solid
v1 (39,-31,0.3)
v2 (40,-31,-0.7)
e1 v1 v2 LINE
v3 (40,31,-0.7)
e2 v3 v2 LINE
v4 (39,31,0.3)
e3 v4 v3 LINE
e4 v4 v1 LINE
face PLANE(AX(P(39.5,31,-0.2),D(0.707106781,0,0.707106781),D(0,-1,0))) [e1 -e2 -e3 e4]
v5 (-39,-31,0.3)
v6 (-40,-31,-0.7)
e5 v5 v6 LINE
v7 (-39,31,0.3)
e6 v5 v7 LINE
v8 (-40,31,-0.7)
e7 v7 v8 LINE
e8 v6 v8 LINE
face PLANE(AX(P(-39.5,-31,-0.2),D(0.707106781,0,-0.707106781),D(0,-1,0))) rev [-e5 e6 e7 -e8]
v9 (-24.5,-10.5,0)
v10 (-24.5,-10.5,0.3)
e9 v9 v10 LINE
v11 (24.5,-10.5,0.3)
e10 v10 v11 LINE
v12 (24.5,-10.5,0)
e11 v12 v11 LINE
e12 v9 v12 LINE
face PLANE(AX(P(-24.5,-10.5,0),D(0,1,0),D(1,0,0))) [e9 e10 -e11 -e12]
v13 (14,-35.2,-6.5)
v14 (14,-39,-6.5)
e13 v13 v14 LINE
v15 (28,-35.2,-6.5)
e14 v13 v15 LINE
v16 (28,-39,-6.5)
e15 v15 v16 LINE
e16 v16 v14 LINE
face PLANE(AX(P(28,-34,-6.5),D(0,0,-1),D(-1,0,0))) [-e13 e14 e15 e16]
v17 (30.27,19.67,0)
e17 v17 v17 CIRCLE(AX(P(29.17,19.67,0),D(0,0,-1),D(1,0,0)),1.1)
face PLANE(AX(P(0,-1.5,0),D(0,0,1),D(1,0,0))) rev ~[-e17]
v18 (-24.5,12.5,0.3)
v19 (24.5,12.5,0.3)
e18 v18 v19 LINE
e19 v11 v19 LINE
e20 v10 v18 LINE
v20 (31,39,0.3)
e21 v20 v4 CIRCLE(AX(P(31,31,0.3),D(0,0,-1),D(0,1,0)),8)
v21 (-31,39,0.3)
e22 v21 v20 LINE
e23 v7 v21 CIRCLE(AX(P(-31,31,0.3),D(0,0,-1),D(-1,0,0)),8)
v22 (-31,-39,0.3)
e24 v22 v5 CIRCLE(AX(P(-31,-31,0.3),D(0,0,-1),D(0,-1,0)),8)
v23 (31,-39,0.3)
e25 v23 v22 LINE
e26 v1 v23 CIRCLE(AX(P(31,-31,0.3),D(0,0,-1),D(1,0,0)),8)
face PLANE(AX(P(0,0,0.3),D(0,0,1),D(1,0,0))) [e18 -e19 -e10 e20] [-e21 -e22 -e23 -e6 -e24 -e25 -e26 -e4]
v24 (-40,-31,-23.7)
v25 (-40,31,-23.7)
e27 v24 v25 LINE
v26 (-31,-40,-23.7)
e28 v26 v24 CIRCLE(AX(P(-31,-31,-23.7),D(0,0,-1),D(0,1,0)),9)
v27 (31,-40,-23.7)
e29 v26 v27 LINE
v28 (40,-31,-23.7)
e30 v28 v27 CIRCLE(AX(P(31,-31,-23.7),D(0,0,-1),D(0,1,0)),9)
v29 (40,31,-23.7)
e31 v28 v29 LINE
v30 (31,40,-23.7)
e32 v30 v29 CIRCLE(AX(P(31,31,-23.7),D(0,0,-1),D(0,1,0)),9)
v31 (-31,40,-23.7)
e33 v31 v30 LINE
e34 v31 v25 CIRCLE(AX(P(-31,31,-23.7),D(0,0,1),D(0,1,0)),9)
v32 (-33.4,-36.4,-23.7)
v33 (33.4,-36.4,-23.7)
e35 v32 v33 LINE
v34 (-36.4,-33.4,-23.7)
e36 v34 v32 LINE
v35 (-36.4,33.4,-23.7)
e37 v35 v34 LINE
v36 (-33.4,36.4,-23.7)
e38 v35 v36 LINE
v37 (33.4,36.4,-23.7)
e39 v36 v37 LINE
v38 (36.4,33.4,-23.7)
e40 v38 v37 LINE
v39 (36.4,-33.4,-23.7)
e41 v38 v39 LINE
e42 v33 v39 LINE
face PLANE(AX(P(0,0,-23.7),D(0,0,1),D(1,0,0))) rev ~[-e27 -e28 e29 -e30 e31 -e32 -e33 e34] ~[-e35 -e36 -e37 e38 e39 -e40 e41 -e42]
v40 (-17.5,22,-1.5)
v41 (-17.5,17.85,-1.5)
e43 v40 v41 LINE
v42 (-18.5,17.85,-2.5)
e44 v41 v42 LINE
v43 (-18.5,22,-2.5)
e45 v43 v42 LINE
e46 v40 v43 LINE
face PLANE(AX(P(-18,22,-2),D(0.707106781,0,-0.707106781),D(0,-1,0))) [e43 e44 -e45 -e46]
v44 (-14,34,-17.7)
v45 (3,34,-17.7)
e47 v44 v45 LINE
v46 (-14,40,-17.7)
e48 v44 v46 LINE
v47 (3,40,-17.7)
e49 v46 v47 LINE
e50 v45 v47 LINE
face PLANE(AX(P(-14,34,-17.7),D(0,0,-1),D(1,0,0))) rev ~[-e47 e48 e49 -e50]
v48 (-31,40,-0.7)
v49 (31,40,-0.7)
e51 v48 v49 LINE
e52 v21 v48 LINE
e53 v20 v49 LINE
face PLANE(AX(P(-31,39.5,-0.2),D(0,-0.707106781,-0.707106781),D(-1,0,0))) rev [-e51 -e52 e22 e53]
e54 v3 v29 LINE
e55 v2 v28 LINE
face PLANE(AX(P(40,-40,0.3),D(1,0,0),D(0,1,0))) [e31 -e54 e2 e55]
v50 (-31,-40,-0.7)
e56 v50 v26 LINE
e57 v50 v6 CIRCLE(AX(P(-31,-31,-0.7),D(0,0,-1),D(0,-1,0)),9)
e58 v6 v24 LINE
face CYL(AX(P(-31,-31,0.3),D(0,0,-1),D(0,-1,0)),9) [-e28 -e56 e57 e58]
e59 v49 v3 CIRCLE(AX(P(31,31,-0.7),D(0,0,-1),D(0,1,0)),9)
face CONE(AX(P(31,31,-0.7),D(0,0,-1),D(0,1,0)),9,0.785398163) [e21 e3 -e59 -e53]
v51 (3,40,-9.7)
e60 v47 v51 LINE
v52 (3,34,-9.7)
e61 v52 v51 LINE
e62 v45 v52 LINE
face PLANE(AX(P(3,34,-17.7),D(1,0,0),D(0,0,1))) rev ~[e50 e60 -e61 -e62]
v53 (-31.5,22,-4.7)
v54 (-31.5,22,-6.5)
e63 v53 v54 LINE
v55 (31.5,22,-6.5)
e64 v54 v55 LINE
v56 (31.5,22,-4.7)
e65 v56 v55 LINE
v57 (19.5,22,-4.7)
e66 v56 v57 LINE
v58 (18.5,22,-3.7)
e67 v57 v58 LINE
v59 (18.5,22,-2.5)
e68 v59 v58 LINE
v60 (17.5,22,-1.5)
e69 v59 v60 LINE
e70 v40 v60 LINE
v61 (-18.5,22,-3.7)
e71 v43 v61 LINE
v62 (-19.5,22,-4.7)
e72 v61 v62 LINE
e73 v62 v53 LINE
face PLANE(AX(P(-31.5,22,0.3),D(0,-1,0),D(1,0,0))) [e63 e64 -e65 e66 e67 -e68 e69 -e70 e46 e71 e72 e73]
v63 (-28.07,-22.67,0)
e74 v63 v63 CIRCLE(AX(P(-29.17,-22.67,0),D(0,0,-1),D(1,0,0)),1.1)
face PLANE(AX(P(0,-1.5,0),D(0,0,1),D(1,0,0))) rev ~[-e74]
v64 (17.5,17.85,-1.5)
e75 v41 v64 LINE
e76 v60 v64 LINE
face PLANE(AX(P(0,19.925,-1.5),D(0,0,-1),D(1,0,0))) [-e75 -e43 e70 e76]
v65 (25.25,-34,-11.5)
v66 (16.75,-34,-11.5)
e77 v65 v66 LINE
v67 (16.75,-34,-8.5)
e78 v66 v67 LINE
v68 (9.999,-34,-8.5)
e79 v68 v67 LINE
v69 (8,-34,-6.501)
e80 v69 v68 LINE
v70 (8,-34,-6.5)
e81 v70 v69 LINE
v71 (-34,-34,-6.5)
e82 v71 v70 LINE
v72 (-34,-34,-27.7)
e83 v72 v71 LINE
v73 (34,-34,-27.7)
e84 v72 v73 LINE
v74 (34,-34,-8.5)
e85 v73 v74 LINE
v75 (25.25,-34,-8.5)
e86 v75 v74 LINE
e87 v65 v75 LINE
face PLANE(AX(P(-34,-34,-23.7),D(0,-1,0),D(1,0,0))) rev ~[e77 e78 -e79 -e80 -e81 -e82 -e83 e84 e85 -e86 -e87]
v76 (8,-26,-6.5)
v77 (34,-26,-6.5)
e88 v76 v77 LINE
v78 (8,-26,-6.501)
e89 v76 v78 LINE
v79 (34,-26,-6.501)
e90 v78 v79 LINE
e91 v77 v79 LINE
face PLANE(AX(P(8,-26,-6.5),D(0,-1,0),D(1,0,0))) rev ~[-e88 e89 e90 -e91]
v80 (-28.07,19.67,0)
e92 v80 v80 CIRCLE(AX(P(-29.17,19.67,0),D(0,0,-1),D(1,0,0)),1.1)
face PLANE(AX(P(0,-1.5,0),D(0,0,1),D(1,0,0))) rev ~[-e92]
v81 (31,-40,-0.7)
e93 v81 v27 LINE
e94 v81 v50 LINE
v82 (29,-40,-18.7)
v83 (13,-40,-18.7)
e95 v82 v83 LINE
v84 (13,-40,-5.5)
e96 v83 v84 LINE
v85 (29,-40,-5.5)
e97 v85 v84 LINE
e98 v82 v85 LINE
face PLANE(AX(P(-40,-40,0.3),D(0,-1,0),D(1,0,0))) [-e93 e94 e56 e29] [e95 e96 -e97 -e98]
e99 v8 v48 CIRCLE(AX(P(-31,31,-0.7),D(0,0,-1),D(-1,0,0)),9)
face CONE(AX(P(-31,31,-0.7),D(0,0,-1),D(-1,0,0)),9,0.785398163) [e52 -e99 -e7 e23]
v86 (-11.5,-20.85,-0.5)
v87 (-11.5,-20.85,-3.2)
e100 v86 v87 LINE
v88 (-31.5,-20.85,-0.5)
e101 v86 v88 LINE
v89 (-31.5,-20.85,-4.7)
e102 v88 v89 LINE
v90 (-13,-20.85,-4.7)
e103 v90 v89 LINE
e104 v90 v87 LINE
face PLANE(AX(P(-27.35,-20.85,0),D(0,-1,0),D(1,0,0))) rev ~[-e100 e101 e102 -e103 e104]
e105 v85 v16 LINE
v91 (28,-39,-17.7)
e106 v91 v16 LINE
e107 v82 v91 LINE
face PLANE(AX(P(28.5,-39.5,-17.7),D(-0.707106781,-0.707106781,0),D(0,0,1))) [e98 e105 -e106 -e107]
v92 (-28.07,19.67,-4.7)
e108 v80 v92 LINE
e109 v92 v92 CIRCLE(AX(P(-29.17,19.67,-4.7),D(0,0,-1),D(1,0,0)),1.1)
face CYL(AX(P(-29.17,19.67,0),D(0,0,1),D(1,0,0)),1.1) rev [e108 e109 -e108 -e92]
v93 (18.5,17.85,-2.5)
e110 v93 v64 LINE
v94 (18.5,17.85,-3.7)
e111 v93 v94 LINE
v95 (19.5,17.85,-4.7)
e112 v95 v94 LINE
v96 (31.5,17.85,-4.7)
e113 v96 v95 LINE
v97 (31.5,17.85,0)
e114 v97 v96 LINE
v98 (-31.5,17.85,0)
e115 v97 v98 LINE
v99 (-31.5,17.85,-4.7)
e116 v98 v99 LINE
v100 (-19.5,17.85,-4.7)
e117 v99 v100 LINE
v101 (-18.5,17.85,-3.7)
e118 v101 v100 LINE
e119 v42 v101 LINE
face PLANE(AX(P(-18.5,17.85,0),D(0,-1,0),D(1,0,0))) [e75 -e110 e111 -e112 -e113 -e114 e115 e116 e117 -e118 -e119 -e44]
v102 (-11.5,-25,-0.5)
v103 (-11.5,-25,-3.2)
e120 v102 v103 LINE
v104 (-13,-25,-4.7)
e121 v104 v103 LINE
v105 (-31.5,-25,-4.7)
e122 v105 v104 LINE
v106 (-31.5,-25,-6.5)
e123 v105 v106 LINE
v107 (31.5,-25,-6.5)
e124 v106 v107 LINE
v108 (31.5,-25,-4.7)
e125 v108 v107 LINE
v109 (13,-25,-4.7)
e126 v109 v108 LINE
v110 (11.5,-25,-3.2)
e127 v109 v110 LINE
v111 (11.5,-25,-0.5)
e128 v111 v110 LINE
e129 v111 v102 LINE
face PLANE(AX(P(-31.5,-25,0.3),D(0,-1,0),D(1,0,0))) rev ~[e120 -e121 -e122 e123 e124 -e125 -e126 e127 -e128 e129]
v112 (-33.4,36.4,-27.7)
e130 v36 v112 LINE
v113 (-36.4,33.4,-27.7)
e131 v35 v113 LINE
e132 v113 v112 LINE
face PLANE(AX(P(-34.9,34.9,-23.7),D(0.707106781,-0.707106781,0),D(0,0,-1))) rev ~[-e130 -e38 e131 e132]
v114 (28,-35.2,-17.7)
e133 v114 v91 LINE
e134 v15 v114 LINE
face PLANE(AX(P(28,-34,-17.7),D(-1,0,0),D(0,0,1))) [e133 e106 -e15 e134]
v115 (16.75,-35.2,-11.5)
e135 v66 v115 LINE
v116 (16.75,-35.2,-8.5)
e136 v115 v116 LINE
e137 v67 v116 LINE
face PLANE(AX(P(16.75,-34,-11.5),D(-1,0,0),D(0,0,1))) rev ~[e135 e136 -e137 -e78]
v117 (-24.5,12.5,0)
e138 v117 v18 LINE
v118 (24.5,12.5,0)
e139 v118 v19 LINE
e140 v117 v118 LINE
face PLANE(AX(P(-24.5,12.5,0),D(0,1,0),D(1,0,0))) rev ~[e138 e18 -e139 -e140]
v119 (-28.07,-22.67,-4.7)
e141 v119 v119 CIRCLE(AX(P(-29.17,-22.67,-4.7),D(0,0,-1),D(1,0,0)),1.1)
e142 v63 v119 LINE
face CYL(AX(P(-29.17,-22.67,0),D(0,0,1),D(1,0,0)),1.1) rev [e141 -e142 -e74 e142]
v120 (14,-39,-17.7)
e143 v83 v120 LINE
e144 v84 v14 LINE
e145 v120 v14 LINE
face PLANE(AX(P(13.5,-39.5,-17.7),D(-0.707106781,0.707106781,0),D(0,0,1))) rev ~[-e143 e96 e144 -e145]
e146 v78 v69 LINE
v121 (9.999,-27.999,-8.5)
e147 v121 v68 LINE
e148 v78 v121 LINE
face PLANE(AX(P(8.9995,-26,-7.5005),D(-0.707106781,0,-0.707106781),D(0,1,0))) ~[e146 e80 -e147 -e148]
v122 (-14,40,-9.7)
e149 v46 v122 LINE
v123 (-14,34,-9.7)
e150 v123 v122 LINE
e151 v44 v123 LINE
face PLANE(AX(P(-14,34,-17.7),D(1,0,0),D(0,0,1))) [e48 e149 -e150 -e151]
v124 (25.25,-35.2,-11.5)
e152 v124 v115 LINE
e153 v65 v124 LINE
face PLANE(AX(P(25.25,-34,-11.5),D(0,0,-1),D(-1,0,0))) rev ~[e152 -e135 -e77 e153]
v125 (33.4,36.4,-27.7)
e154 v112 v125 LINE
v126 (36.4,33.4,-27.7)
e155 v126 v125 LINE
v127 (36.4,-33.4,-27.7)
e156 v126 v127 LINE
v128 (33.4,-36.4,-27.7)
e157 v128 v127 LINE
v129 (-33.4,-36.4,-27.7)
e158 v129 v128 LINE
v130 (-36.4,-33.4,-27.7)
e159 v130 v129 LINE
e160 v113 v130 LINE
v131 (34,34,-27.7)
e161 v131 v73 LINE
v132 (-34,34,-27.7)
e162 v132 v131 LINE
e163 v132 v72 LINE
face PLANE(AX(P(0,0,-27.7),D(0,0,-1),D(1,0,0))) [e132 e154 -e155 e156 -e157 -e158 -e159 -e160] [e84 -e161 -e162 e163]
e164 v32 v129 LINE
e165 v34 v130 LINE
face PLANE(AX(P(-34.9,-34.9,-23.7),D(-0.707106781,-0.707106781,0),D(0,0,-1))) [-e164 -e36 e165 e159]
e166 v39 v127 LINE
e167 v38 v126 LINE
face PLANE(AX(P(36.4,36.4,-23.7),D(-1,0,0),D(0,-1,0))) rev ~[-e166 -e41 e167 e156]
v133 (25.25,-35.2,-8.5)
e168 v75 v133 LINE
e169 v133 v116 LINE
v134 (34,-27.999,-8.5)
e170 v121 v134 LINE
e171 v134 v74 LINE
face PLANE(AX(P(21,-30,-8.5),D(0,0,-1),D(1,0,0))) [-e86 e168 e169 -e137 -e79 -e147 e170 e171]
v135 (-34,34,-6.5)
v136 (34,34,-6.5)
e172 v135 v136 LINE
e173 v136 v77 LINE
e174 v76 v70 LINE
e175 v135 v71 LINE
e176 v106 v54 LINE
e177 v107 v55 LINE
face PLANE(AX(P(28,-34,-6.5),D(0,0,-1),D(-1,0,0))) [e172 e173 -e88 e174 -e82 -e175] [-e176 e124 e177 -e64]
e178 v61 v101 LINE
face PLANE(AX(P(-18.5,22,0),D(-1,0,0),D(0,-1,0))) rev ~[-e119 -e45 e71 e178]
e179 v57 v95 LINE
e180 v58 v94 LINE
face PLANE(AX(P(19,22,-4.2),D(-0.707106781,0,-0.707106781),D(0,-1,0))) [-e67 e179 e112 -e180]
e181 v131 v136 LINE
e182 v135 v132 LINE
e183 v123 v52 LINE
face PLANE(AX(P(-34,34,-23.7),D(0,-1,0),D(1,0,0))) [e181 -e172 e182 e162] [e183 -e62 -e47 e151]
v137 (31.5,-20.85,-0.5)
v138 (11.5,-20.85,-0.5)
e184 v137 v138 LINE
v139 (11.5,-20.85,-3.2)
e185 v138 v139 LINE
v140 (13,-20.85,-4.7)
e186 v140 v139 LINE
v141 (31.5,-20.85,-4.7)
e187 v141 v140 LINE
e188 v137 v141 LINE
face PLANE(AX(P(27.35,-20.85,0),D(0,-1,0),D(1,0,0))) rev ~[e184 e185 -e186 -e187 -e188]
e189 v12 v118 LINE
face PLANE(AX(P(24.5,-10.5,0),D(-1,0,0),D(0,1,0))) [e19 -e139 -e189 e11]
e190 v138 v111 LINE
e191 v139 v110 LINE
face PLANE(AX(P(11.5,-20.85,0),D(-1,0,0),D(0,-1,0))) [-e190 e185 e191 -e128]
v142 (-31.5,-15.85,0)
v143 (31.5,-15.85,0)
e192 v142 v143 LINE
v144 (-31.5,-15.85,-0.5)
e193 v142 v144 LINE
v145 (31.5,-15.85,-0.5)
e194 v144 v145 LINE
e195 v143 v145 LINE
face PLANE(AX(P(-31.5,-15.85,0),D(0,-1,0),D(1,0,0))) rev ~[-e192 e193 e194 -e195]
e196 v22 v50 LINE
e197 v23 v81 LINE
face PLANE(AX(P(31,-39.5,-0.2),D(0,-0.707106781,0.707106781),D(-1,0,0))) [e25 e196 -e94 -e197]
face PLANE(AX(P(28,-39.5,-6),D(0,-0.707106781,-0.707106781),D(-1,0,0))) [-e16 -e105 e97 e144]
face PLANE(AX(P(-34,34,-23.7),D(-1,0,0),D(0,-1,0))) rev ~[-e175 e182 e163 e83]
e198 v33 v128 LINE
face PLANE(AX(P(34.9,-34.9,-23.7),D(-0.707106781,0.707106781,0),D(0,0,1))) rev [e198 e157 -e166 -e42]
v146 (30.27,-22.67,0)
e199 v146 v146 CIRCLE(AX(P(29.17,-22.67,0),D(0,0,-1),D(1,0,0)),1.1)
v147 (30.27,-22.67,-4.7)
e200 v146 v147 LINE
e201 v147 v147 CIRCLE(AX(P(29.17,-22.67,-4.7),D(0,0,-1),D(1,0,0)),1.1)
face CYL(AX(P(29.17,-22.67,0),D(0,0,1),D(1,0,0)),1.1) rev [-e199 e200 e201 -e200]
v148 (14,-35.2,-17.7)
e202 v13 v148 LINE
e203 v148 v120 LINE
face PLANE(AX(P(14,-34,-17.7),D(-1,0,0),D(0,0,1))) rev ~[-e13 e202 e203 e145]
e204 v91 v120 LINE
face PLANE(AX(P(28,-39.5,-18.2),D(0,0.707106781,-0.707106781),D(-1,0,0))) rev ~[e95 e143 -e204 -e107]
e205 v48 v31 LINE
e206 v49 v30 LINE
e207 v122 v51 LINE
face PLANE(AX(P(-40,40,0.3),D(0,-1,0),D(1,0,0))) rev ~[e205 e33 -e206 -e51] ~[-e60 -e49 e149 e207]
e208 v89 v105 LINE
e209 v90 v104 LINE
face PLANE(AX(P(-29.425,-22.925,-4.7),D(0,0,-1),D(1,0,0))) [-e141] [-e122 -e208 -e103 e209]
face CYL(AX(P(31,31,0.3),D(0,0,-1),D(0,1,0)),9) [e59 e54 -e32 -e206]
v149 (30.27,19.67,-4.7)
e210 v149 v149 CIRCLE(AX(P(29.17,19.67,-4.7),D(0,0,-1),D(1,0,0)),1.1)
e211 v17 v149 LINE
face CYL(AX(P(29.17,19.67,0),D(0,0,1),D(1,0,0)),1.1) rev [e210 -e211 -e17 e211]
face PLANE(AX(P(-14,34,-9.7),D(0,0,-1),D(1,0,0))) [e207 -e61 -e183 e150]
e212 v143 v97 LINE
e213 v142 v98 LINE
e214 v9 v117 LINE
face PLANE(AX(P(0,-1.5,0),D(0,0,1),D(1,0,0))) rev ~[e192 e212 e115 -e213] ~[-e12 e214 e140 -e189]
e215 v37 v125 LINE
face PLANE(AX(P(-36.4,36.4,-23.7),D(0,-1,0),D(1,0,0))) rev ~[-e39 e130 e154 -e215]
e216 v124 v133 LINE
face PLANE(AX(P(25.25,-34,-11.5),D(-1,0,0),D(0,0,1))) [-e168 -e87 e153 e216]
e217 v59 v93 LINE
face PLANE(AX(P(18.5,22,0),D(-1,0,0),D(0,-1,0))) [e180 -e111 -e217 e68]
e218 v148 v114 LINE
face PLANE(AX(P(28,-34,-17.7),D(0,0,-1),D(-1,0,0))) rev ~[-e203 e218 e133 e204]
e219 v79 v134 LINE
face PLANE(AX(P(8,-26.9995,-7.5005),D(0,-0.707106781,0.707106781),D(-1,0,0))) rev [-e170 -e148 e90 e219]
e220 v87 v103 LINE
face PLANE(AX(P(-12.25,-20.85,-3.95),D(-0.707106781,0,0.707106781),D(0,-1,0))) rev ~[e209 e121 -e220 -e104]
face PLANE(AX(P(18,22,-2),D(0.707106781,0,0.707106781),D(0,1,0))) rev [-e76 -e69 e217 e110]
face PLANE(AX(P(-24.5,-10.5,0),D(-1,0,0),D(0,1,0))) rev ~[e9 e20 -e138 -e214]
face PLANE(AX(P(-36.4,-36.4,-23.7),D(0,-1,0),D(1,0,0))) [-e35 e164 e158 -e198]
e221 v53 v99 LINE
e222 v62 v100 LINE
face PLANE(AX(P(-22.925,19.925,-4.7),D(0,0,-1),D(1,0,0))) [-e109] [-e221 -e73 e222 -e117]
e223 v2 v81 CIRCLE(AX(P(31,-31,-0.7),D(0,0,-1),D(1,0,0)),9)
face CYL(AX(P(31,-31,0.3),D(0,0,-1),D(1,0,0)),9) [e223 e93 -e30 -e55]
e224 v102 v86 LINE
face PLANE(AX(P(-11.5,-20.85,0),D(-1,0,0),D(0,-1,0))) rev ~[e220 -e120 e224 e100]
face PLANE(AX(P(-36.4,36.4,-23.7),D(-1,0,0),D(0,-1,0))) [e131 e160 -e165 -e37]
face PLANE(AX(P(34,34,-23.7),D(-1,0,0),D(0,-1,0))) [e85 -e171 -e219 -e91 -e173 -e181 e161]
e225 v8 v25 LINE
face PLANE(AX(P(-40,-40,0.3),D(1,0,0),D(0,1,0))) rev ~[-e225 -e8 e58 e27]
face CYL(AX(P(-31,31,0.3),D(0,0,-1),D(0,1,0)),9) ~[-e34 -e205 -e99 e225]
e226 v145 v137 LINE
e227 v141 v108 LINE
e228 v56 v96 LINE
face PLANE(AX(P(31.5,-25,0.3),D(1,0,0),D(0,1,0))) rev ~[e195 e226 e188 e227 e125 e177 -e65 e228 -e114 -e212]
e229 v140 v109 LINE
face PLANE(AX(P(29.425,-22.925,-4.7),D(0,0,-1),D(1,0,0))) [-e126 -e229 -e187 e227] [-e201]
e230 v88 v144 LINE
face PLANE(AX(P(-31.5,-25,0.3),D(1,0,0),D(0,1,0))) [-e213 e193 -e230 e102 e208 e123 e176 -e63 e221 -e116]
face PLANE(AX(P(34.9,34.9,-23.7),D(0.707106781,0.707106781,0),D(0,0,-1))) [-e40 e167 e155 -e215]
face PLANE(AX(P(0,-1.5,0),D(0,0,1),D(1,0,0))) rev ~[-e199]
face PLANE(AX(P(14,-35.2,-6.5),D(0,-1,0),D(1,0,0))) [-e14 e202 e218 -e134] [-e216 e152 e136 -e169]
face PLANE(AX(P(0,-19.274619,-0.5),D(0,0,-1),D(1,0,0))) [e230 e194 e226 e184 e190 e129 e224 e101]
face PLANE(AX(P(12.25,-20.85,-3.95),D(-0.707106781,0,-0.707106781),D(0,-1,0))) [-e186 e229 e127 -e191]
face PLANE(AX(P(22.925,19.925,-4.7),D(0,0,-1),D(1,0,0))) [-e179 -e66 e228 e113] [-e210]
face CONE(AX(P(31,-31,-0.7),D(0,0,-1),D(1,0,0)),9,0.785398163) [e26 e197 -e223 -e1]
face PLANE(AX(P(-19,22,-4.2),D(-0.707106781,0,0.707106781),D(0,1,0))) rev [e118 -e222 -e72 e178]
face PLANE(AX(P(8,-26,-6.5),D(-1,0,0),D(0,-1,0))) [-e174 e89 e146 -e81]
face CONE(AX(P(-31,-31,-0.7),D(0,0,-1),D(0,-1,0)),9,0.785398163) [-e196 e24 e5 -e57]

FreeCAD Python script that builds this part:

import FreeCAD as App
import Part
import Sketcher
from FreeCAD import Vector


def edges_at(feature, points):
    """Names of the edges that pass closest to the given points."""
    edges = feature.Shape.Edges
    near = lambda p: min(range(len(edges)), key=lambda i: edges[i].distToShape(Part.Vertex(*p))[0])
    return sorted({f"Edge{near(p) + 1}" for p in points})


def add_polygon(sketch, points):
    """Adds a closed chain of lines whose ends are joined by coincident constraints."""
    first, n = sketch.GeometryCount, len(points)
    for a, b in zip(points, points[1:] + points[:1]):
        sketch.addGeometry(Part.LineSegment(App.Vector(*a, 0), App.Vector(*b, 0)), False)
    for i in range(n):
        sketch.addConstraint(Sketcher.Constraint("Coincident", first + i, 2, first + (i + 1) % n, 1))

doc = App.newDocument("Part")
params = doc.addObject("Spreadsheet::Sheet", "Params")
for row, (alias, value) in enumerate([
    ("sketch1_width", "63 mm"),
    ("sketch1_width2", "49 mm"),
    ("sketch1_height", "47 mm"),
    ("sketch1_height2", "23 mm"),
    ("pad1_length", "0.3 mm"),
    ("sketch2_width", "65 mm"),
    ("sketch2_width2", "63 mm"),
    ("sketch2_height", "49 mm"),
    ("sketch2_height2", "47 mm"),
    ("pad2_length", "6.8 mm"),
    ("sketch3_diameter", "2.2 mm"),
    ("sketch3_width", "4.15 mm"),
    ("pad3_length", "4.7 mm"),
    ("sketch4_width", "8.85 mm"),
    ("sketch4_height", "4.15 mm"),
    ("pad4_length", "4.7 mm"),
    ("sketch5_width", "37 mm"),
    ("sketch5_height", "4.15 mm"),
    ("pad5_length", "1.5 mm"),
    ("chamfer_size", "1 mm"),
    ("sketch6_width", "23 mm"),
    ("sketch6_width2", "20 mm"),
    ("sketch6_height", "5 mm"),
    ("sketch6_height2", "4.15 mm"),
    ("pad6_length", "0.5 mm"),
    ("chamfer2_size", "1.5 mm"),
    ("sketch7_width", "80 mm"),
    ("sketch7_width2", "65 mm"),
    ("sketch7_height", "49 mm"),
    ("pad7_length", "24 mm"),
    ("sketch8_width", "68 mm"),
    ("sketch8_width2", "65 mm"),
    ("sketch8_height", "49 mm"),
    ("pocket1_length", "17.2 mm"),
    ("sketch9_width", "14 mm"),
    ("sketch9_height", "11.2 mm"),
    ("pocket2_length", "6 mm"),
    ("sketch10_width", "17 mm"),
    ("sketch10_height", "8 mm"),
    ("pocket3_length", "6 mm"),
    ("sketch11_width", "26 mm"),
    ("sketch11_height", "8 mm"),
    ("pad8_length", "2 mm"),
    ("chamfer3_size", "1.999 mm"),
    ("sketch12_width", "14 mm"),
    ("sketch12_height", "1.2 mm"),
    ("pad9_length", "11.2 mm"),
    ("sketch13_height", "3 mm"),
    ("sketch13_width", "8.5 mm"),
    ("pocket4_length", "1.2 mm"),
    ("sketch14_width", "68 mm"),
    ("sketch14_width2", "72.8 mm"),
    ("pad10_length", "4 mm"),
    ("fillet_radius", "9 mm"),
    ("chamfer4_size", "3 mm"),
    ("chamfer5_size", "1 mm"),
    ("chamfer6_size", "1 mm"),
], start=1):
    params.set(f"A{row}", alias)
    params.set(f"B{row}", "=" + value)
    params.setAlias(f"B{row}", alias)

body = doc.addObject("PartDesign::Body", "Body")

# Sketch on XY plane
sketch1 = body.newObject("Sketcher::SketchObject", "Sketch")
sketch1.AttachmentSupport = (doc.getObject("XY_Plane"), [""])
sketch1.MapMode = "FlatFace"
add_polygon(sketch1, [(-32, 22), (-32, -25), (32, -25), (32, 22)])  # lines 0-3
add_polygon(sketch1, [(24, -10), (-24, -10), (-24, 12), (24, 12)])  # lines 4-7
sketch1.addConstraint(Sketcher.Constraint("Vertical", 0))
sketch1.addConstraint(Sketcher.Constraint("Horizontal", 1))
sketch1.addConstraint(Sketcher.Constraint("Vertical", 2))
sketch1.addConstraint(Sketcher.Constraint("Horizontal", 3))
sketch1.addConstraint(Sketcher.Constraint("Horizontal", 4))
sketch1.addConstraint(Sketcher.Constraint("Vertical", 5))
sketch1.addConstraint(Sketcher.Constraint("Horizontal", 6))
sketch1.addConstraint(Sketcher.Constraint("Vertical", 7))
sketch1.addConstraint(Sketcher.Constraint("DistanceX", 1, 1, 1, 2, 63.0))
sketch1.addConstraint(Sketcher.Constraint("DistanceX", 4, 2, 4, 1, 49.0))
sketch1.addConstraint(Sketcher.Constraint("DistanceY", 0, 2, 0, 1, 47.0))
sketch1.addConstraint(Sketcher.Constraint("DistanceY", 5, 1, 5, 2, 23.0))
sketch1.addConstraint(Sketcher.Constraint("DistanceY", 0, 2, -1, 1, 25.0))
sketch1.addConstraint(Sketcher.Constraint("DistanceX", 0, 2, 4, 2, 7.0))
sketch1.addConstraint(Sketcher.Constraint("DistanceX", 0, 2, -1, 1, 31.5))
sketch1.addConstraint(Sketcher.Constraint("DistanceY", 4, 2, -1, 1, 10.5))
sketch1.setExpression("Constraints[16]", "Params.sketch1_width")
sketch1.setExpression("Constraints[17]", "Params.sketch1_width2")
sketch1.setExpression("Constraints[18]", "Params.sketch1_height")
sketch1.setExpression("Constraints[19]", "Params.sketch1_height2")
pad1 = body.newObject("PartDesign::Pad", "Pad")
pad1.Profile = sketch1
pad1.setExpression("Length", "Params.pad1_length")

# Sketch on XY plane
sketch2 = body.newObject("Sketcher::SketchObject", "Sketch001")
sketch2.AttachmentSupport = (doc.getObject("XY_Plane"), [""])
sketch2.MapMode = "FlatFace"
sketch2.AttachmentOffset = App.Placement(Vector(0, 0, 0.3), App.Rotation())
add_polygon(sketch2, [(-32, 23), (-32, -26), (32, -26), (32, 23)])  # lines 0-3
add_polygon(sketch2, [(32, -25), (-32, -25), (-32, 22), (32, 22)])  # lines 4-7
sketch2.addConstraint(Sketcher.Constraint("Vertical", 0))
sketch2.addConstraint(Sketcher.Constraint("Horizontal", 1))
sketch2.addConstraint(Sketcher.Constraint("Vertical", 2))
sketch2.addConstraint(Sketcher.Constraint("Horizontal", 3))
sketch2.addConstraint(Sketcher.Constraint("Horizontal", 4))
sketch2.addConstraint(Sketcher.Constraint("Vertical", 5))
sketch2.addConstraint(Sketcher.Constraint("Horizontal", 6))
sketch2.addConstraint(Sketcher.Constraint("Vertical", 7))
sketch2.addConstraint(Sketcher.Constraint("DistanceX", 1, 1, 1, 2, 65.0))
sketch2.addConstraint(Sketcher.Constraint("DistanceX", 4, 2, 4, 1, 63.0))
sketch2.addConstraint(Sketcher.Constraint("DistanceY", 0, 2, 0, 1, 49.0))
sketch2.addConstraint(Sketcher.Constraint("DistanceY", 5, 1, 5, 2, 47.0))
sketch2.addConstraint(Sketcher.Constraint("DistanceY", 0, 2, -1, 1, 26.0))
sketch2.addConstraint(Sketcher.Constraint("DistanceY", 4, 2, -1, 1, 25.0))
sketch2.addConstraint(Sketcher.Constraint("DistanceX", 0, 2, 4, 2, 1.0))
sketch2.addConstraint(Sketcher.Constraint("DistanceX", 0, 2, -1, 1, 32.5))
sketch2.setExpression("Constraints[16]", "Params.sketch2_width")
sketch2.setExpression("Constraints[17]", "Params.sketch2_width2")
sketch2.setExpression("Constraints[18]", "Params.sketch2_height")
sketch2.setExpression("Constraints[19]", "Params.sketch2_height2")
pad2 = body.newObject("PartDesign::Pad", "Pad001")
pad2.Profile = sketch2
pad2.setExpression("Length", "Params.pad2_length")
pad2.Reversed = True

# Sketch on XY plane
sketch3 = body.newObject("Sketcher::SketchObject", "Sketch002")
sketch3.AttachmentSupport = (doc.getObject("XY_Plane"), [""])
sketch3.MapMode = "FlatFace"
add_polygon(sketch3, [(-31.5, -25), (-31.5, -20.9), (-27.4, -20.9), (-27.4, -25)])  # lines 0-3
sketch3.addGeometry(Part.Circle(Vector(-29.2, -22.7, 0), Vector(0, 0, 1), 1.1), False)  # 4
add_polygon(sketch3, [(-31.5, 17.9), (-31.5, 22), (-27.4, 22), (-27.4, 17.9)])  # lines 5-8
sketch3.addGeometry(Part.Circle(Vector(-29.2, 19.7, 0), Vector(0, 0, 1), 1.1), False)  # 9
add_polygon(sketch3, [(27.4, 17.9), (27.4, 22), (31.5, 22), (31.5, 17.9)])  # lines 10-13
sketch3.addGeometry(Part.Circle(Vector(29.2, 19.7, 0), Vector(0, 0, 1), 1.1), False)  # 14
add_polygon(sketch3, [(27.4, -25), (27.4, -20.9), (31.5, -20.9), (31.5, -25)])  # lines 15-18
sketch3.addGeometry(Part.Circle(Vector(29.2, -22.7, 0), Vector(0, 0, 1), 1.1), False)  # 19
sketch3.addConstraint(Sketcher.Constraint("Vertical", 0))
sketch3.addConstraint(Sketcher.Constraint("Horizontal", 1))
sketch3.addConstraint(Sketcher.Constraint("Vertical", 2))
sketch3.addConstraint(Sketcher.Constraint("Horizontal", 3))
sketch3.addConstraint(Sketcher.Constraint("Vertical", 5))
sketch3.addConstraint(Sketcher.Constraint("Horizontal", 6))
sketch3.addConstraint(Sketcher.Constraint("Vertical", 7))
sketch3.addConstraint(Sketcher.Constraint("Horizontal", 8))
sketch3.addConstraint(Sketcher.Constraint("Vertical", 10))
sketch3.addConstraint(Sketcher.Constraint("Horizontal", 11))
sketch3.addConstraint(Sketcher.Constraint("Vertical", 12))
sketch3.addConstraint(Sketcher.Constraint("Horizontal", 13))
sketch3.addConstraint(Sketcher.Constraint("Vertical", 15))
sketch3.addConstraint(Sketcher.Constraint("Horizontal", 16))
sketch3.addConstraint(Sketcher.Constraint("Vertical", 17))
sketch3.addConstraint(Sketcher.Constraint("Horizontal", 18))
sketch3.addConstraint(Sketcher.Constraint("Equal", 4, 9))
sketch3.addConstraint(Sketcher.Constraint("Equal", 9, 14))
sketch3.addConstraint(Sketcher.Constraint("Equal", 14, 19))
sketch3.addConstraint(Sketcher.Constraint("Symmetric", 9, 3, 14, 3, -2))
sketch3.addConstraint(Sketcher.Constraint("Symmetric", 4, 3, 19, 3, -2))
sketch3.addConstraint(Sketcher.Constraint("Symmetric", 6, 2, 10, 2, -2))
sketch3.addConstraint(Sketcher.Constraint("Symmetric", 8, 2, 12, 2, -2))
sketch3.addConstraint(Sketcher.Constraint("Symmetric", 1, 2, 15, 2, -2))
sketch3.addConstraint(Sketcher.Constraint("Symmetric", 3, 2, 17, 2, -2))
sketch3.addConstraint(Sketcher.Constraint("Vertical", 4, 3, 9, 3))
sketch3.addConstraint(Sketcher.Constraint("Vertical", 3, 2, 5, 2))
sketch3.addConstraint(Sketcher.Constraint("Vertical", 2, 2, 6, 2))
sketch3.addConstraint(Sketcher.Constraint("Equal", 18, 0))
sketch3.addConstraint(Sketcher.Constraint("Equal", 2, 5))
sketch3.addConstraint(Sketcher.Constraint("Diameter", 4, 2.2))
sketch3.addConstraint(Sketcher.Constraint("DistanceY", 2, 2, -1, 1, 25.0))
sketch3.addConstraint(Sketcher.Constraint("DistanceY", -1, 1, 5, 2, 22.0))
sketch3.addConstraint(Sketcher.Constraint("DistanceX", 1, 1, 1, 2, 4.15))
sketch3.addConstraint(Sketcher.Constraint("DistanceX", 0, 2, -1, 1, 31.5))
sketch3.addConstraint(Sketcher.Constraint("DistanceX", 4, 3, -1, 1, 29.17))
sketch3.addConstraint(Sketcher.Constraint("DistanceY", 4, 3, -1, 1, 22.67))
sketch3.addConstraint(Sketcher.Constraint("DistanceY", -1, 1, 9, 3, 19.67))
sketch3.setExpression("Constraints[46]", "Params.sketch3_diameter")
sketch3.setExpression("Constraints[49]", "Params.sketch3_width")
pad3 = body.newObject("PartDesign::Pad", "Pad002")
pad3.Profile = sketch3
pad3.setExpression("Length", "Params.pad3_length")
pad3.Reversed = True

# Sketch on XY plane
sketch4 = body.newObject("Sketcher::SketchObject", "Sketch003")
sketch4.AttachmentSupport = (doc.getObject("XY_Plane"), [""])
sketch4.MapMode = "FlatFace"
add_polygon(sketch4, [(-27.4, 17.9), (-27.4, 22), (-18.5, 22), (-18.5, 17.9)])  # lines 0-3
add_polygon(sketch4, [(18.5, 17.9), (18.5, 22), (27.4, 22), (27.4, 17.9)])  # lines 4-7
add_polygon(sketch4, [(-27.4, -25), (-27.4, -20.9), (-11.5, -20.9), (-11.5, -25)])  # lines 8-11
add_polygon(sketch4, [(11.5, -25), (11.5, -20.9), (27.4, -20.9), (27.4, -25)])  # lines 12-15
sketch4.addConstraint(Sketcher.Constraint("Vertical", 0))
sketch4.addConstraint(Sketcher.Constraint("Horizontal", 1))
sketch4.addConstraint(Sketcher.Constraint("Vertical", 2))
sketch4.addConstraint(Sketcher.Constraint("Horizontal", 3))
sketch4.addConstraint(Sketcher.Constraint("Vertical", 4))
sketch4.addConstraint(Sketcher.Constraint("Horizontal", 5))
sketch4.addConstraint(Sketcher.Constraint("Vertical", 6))
sketch4.addConstraint(Sketcher.Constraint("Horizontal", 7))
sketch4.addConstraint(Sketcher.Constraint("Vertical", 8))
sketch4.addConstraint(Sketcher.Constraint("Horizontal", 9))
sketch4.addConstraint(Sketcher.Constraint("Vertical", 10))
sketch4.addConstraint(Sketcher.Constraint("Horizontal", 11))
sketch4.addConstraint(Sketcher.Constraint("Vertical", 12))
sketch4.addConstraint(Sketcher.Constraint("Horizontal", 13))
sketch4.addConstraint(Sketcher.Constraint("Vertical", 14))
sketch4.addConstraint(Sketcher.Constraint("Horizontal", 15))
sketch4.addConstraint(Sketcher.Constraint("Symmetric", 1, 2, 4, 2, -2))
sketch4.addConstraint(Sketcher.Constraint("Symmetric", 3, 2, 6, 2, -2))
sketch4.addConstraint(Sketcher.Constraint("Symmetric", 9, 2, 12, 2, -2))
sketch4.addConstraint(Sketcher.Constraint("Symmetric", 11, 2, 14, 2, -2))
sketch4.addConstraint(Sketcher.Constraint("Vertical", 3, 2, 8, 2))
sketch4.addConstraint(Sketcher.Constraint("Equal", 6, 8))
sketch4.addConstraint(Sketcher.Constraint("DistanceY", -1, 1, 0, 2, 22.0))
sketch4.addConstraint(Sketcher.Constraint("DistanceY", 10, 2, -1, 1, 25.0))
sketch4.addConstraint(Sketcher.Constraint("DistanceX", 1, 2, 4, 2, 37.0))
sketch4.addConstraint(Sketcher.Constraint("DistanceX", 2, 2, 9, 2, 7.0))
sketch4.addConstraint(Sketcher.Constraint("DistanceX", 1, 1, 1, 2, 8.85))
sketch4.addConstraint(Sketcher.Constraint("DistanceY", 0, 1, 0, 2, 4.15))
sketch4.setExpression("Constraints[42]", "Params.sketch4_width")
sketch4.setExpression("Constraints[43]", "Params.sketch4_height")
pad4 = body.newObject("PartDesign::Pad", "Pad003")
pad4.Profile = sketch4
pad4.setExpression("Length", "Params.pad4_length")
pad4.Reversed = True

# Sketch on XY plane
sketch5 = body.newObject("Sketcher::SketchObject", "Sketch004")
sketch5.AttachmentSupport = (doc.getObject("XY_Plane"), [""])
sketch5.MapMode = "FlatFace"
add_polygon(sketch5, [(-18.5, 17.9), (-18.5, 22), (18.5, 22), (18.5, 17.9)])  # lines 0-3
sketch5.addConstraint(Sketcher.Constraint("Vertical", 0))
sketch5.addConstraint(Sketcher.Constraint("Horizontal", 1))
sketch5.addConstraint(Sketcher.Constraint("Vertical", 2))
sketch5.addConstraint(Sketcher.Constraint("Horizontal", 3))
sketch5.addConstraint(Sketcher.Constraint("DistanceX", 1, 1, 1, 2, 37.0))
sketch5.addConstraint(Sketcher.Constraint("DistanceY", -1, 1, 0, 2, 22.0))
sketch5.addConstraint(Sketcher.Constraint("DistanceY", 0, 1, 0, 2, 4.15))
sketch5.addConstraint(Sketcher.Constraint("DistanceX", 0, 2, -1, 1, 18.5))
sketch5.setExpression("Constraints[8]", "Params.sketch5_width")
sketch5.setExpression("Constraints[10]", "Params.sketch5_height")
pad5 = body.newObject("PartDesign::Pad", "Pad004")
pad5.Profile = sketch5
pad5.setExpression("Length", "Params.pad5_length")
pad5.Reversed = True
doc.recompute()

chamfer = body.newObject("PartDesign::Chamfer", "Chamfer")
chamfer.Base = (pad5, edges_at(pad5, [
    (-18.5, 19.925, -1.5),
    (18.5, 19.925, -1.5),
    (-18.5, 19.925, -4.7),
    (18.5, 19.925, -4.7),
]))
chamfer.setExpression("Size", "Params.chamfer_size")

# Sketch on XY plane
sketch6 = body.newObject("Sketcher::SketchObject", "Sketch005")
sketch6.AttachmentSupport = (doc.getObject("XY_Plane"), [""])
sketch6.MapMode = "FlatFace"
add_polygon(sketch6, [(11.5, -20.9), (11.5, -25), (-11.5, -25), (-11.5, -20.9), (-31.5, -20.9), (-31.5, -15.8), (31.5, -15.8), (31.5, -20.9)])  # lines 0-7
sketch6.addConstraint(Sketcher.Constraint("Vertical", 0))
sketch6.addConstraint(Sketcher.Constraint("Horizontal", 1))
sketch6.addConstraint(Sketcher.Constraint("Vertical", 2))
sketch6.addConstraint(Sketcher.Constraint("Horizontal", 3))
sketch6.addConstraint(Sketcher.Constraint("Vertical", 4))
sketch6.addConstraint(Sketcher.Constraint("Horizontal", 5))
sketch6.addConstraint(Sketcher.Constraint("Vertical", 6))
sketch6.addConstraint(Sketcher.Constraint("Horizontal", 7))
sketch6.addConstraint(Sketcher.Constraint("Symmetric", 3, 2, 6, 2, -2))
sketch6.addConstraint(Sketcher.Constraint("Equal", 3, 7))
sketch6.addConstraint(Sketcher.Constraint("DistanceX", 1, 2, 1, 1, 23.0))
sketch6.addConstraint(Sketcher.Constraint("DistanceX", 3, 2, 3, 1, 20.0))
sketch6.addConstraint(Sketcher.Constraint("DistanceY", 4, 1, 4, 2, 5.0))
sketch6.addConstraint(Sketcher.Constraint("DistanceY", 0, 2, -1, 1, 25.0))
sketch6.addConstraint(Sketcher.Constraint("DistanceY", 0, 2, 0, 1, 4.15))
sketch6.setExpression("Constraints[18]", "Params.sketch6_width")
sketch6.setExpression("Constraints[19]", "Params.sketch6_width2")
sketch6.setExpression("Constraints[20]", "Params.sketch6_height")
sketch6.setExpression("Constraints[22]", "Params.sketch6_height2")
pad6 = body.newObject("PartDesign::Pad", "Pad005")
pad6.Profile = sketch6
pad6.setExpression("Length", "Params.pad6_length")
pad6.Reversed = True
doc.recompute()

chamfer2 = body.newObject("PartDesign::Chamfer", "Chamfer001")
chamfer2.Base = (pad6, edges_at(pad6, [(-11.5, -22.925, -4.7), (11.5, -22.925, -4.7)]))
chamfer2.setExpression("Size", "Params.chamfer2_size")

# Sketch on XY plane
sketch7 = body.newObject("Sketcher::SketchObject", "Sketch006")
sketch7.AttachmentSupport = (doc.getObject("XY_Plane"), [""])
sketch7.MapMode = "FlatFace"
sketch7.AttachmentOffset = App.Placement(Vector(0, 0, 0.3), App.Rotation())
add_polygon(sketch7, [(-40, 40), (-40, -40), (40, -40), (40, 40)])  # lines 0-3
add_polygon(sketch7, [(32, -26), (-32, -26), (-32, 23), (32, 23)])  # lines 4-7
sketch7.addConstraint(Sketcher.Constraint("Vertical", 0))
sketch7.addConstraint(Sketcher.Constraint("Horizontal", 1))
sketch7.addConstraint(Sketcher.Constraint("Vertical", 2))
sketch7.addConstraint(Sketcher.Constraint("Horizontal", 3))
sketch7.addConstraint(Sketcher.Constraint("Horizontal", 4))
sketch7.addConstraint(Sketcher.Constraint("Vertical", 5))
sketch7.addConstraint(Sketcher.Constraint("Horizontal", 6))
sketch7.addConstraint(Sketcher.Constraint("Vertical", 7))
sketch7.addConstraint(Sketcher.Constraint("Symmetric", 0, 2, 2, 2, -1, 1))
sketch7.addConstraint(Sketcher.Constraint("Equal", 3, 0))
sketch7.addConstraint(Sketcher.Constraint("DistanceX", 1, 1, 1, 2, 80.0))
sketch7.addConstraint(Sketcher.Constraint("DistanceX", 4, 2, 4, 1, 65.0))
sketch7.addConstraint(Sketcher.Constraint("DistanceY", 5, 1, 5, 2, 49.0))
sketch7.addConstraint(Sketcher.Constraint("DistanceY", 4, 2, -1, 1, 26.0))
sketch7.addConstraint(Sketcher.Constraint("DistanceX", 4, 2, -1, 1, 32.5))
sketch7.setExpression("Constraints[18]", "Params.sketch7_width")
sketch7.setExpression("Constraints[19]", "Params.sketch7_width2")
sketch7.setExpression("Constraints[20]", "Params.sketch7_height")
pad7 = body.newObject("PartDesign::Pad", "Pad006")
pad7.Profile = sketch7
pad7.setExpression("Length", "Params.pad7_length")
pad7.Reversed = True

# Sketch on XY plane
sketch8 = body.newObject("Sketcher::SketchObject", "Sketch007")
sketch8.AttachmentSupport = (doc.getObject("XY_Plane"), [""])
sketch8.MapMode = "FlatFace"
sketch8.AttachmentOffset = App.Placement(Vector(0, 0, -23.7), App.Rotation())
add_polygon(sketch8, [(-34, -34), (-34, 34), (34, 34), (34, -34)])  # lines 0-3
add_polygon(sketch8, [(32, 23), (-32, 23), (-32, -26), (32, -26)])  # lines 4-7
sketch8.addConstraint(Sketcher.Constraint("Vertical", 0))
sketch8.addConstraint(Sketcher.Constraint("Horizontal", 1))
sketch8.addConstraint(Sketcher.Constraint("Vertical", 2))
sketch8.addConstraint(Sketcher.Constraint("Horizontal", 3))
sketch8.addConstraint(Sketcher.Constraint("Horizontal", 4))
sketch8.addConstraint(Sketcher.Constraint("Vertical", 5))
sketch8.addConstraint(Sketcher.Constraint("Horizontal", 6))
sketch8.addConstraint(Sketcher.Constraint("Vertical", 7))
sketch8.addConstraint(Sketcher.Constraint("Symmetric", 0, 2, 2, 2, -1, 1))
sketch8.addConstraint(Sketcher.Constraint("Equal", 3, 0))
sketch8.addConstraint(Sketcher.Constraint("DistanceX", 1, 1, 1, 2, 68.0))
sketch8.addConstraint(Sketcher.Constraint("DistanceX", 4, 2, 4, 1, 65.0))
sketch8.addConstraint(Sketcher.Constraint("DistanceY", 5, 2, 5, 1, 49.0))
sketch8.addConstraint(Sketcher.Constraint("DistanceY", -1, 1, 4, 2, 23.0))
sketch8.addConstraint(Sketcher.Constraint("DistanceX", 4, 2, -1, 1, 32.5))
sketch8.setExpression("Constraints[18]", "Params.sketch8_width")
sketch8.setExpression("Constraints[19]", "Params.sketch8_width2")
sketch8.setExpression("Constraints[20]", "Params.sketch8_height")
pocket1 = body.newObject("PartDesign::Pocket", "Pocket")
pocket1.Profile = sketch8
pocket1.setExpression("Length", "Params.pocket1_length")
pocket1.Reversed = True

# Sketch on XZ plane
sketch9 = body.newObject("Sketcher::SketchObject", "Sketch008")
sketch9.AttachmentSupport = (doc.getObject("XZ_Plane"), [""])
sketch9.MapMode = "FlatFace"
sketch9.AttachmentOffset = App.Placement(Vector(0, 0, 34), App.Rotation())
add_polygon(sketch9, [(28, -6), (28, -18), (14, -18), (14, -6)])  # lines 0-3
sketch9.addConstraint(Sketcher.Constraint("Vertical", 0))
sketch9.addConstraint(Sketcher.Constraint("Horizontal", 1))
sketch9.addConstraint(Sketcher.Constraint("Vertical", 2))
sketch9.addConstraint(Sketcher.Constraint("Horizontal", 3))
sketch9.addConstraint(Sketcher.Constraint("DistanceX", 1, 2, 1, 1, 14.0))
sketch9.addConstraint(Sketcher.Constraint("DistanceY", 0, 2, 0, 1, 11.2))
sketch9.addConstraint(Sketcher.Constraint("DistanceX", -1, 1, 0, 2, 28.0))
sketch9.addConstraint(Sketcher.Constraint("DistanceY", 0, 2, -1, 1, 17.7))
sketch9.setExpression("Constraints[8]", "Params.sketch9_width")
sketch9.setExpression("Constraints[9]", "Params.sketch9_height")
pocket2 = body.newObject("PartDesign::Pocket", "Pocket001")
pocket2.Profile = sketch9
pocket2.setExpression("Length", "Params.pocket2_length")
pocket2.Reversed = True

# Sketch on XZ plane
sketch10 = body.newObject("Sketcher::SketchObject", "Sketch009")
sketch10.AttachmentSupport = (doc.getObject("XZ_Plane"), [""])
sketch10.MapMode = "FlatFace"
sketch10.AttachmentOffset = App.Placement(Vector(0, 0, -34), App.Rotation())
add_polygon(sketch10, [(-14, -10), (-14, -18), (3, -18), (3, -10)])  # lines 0-3
sketch10.addConstraint(Sketcher.Constraint("Vertical", 0))
sketch10.addConstraint(Sketcher.Constraint("Horizontal", 1))
sketch10.addConstraint(Sketcher.Constraint("Vertical", 2))
sketch10.addConstraint(Sketcher.Constraint("Horizontal", 3))
sketch10.addConstraint(Sketcher.Constraint("DistanceX", 1, 1, 1, 2, 17.0))
sketch10.addConstraint(Sketcher.Constraint("DistanceY", 0, 2, 0, 1, 8.0))
sketch10.addConstraint(Sketcher.Constraint("DistanceX", 0, 2, -1, 1, 14.0))
sketch10.addConstraint(Sketcher.Constraint("DistanceY", 0, 2, -1, 1, 17.7))
sketch10.setExpression("Constraints[8]", "Params.sketch10_width")
sketch10.setExpression("Constraints[9]", "Params.sketch10_height")
pocket3 = body.newObject("PartDesign::Pocket", "Pocket002")
pocket3.Profile = sketch10
pocket3.setExpression("Length", "Params.pocket3_length")

# Sketch on XY plane
sketch11 = body.newObject("Sketcher::SketchObject", "Sketch010")
sketch11.AttachmentSupport = (doc.getObject("XY_Plane"), [""])
sketch11.MapMode = "FlatFace"
sketch11.AttachmentOffset = App.Placement(Vector(0, 0, -6.5), App.Rotation())
add_polygon(sketch11, [(8, -34), (8, -26), (34, -26), (34, -34)])  # lines 0-3
sketch11.addConstraint(Sketcher.Constraint("Vertical", 0))
sketch11.addConstraint(Sketcher.Constraint("Horizontal", 1))
sketch11.addConstraint(Sketcher.Constraint("Vertical", 2))
sketch11.addConstraint(Sketcher.Constraint("Horizontal", 3))
sketch11.addConstraint(Sketcher.Constraint("DistanceX", 1, 1, 1, 2, 26.0))
sketch11.addConstraint(Sketcher.Constraint("DistanceY", 0, 1, 0, 2, 8.0))
sketch11.addConstraint(Sketcher.Constraint("DistanceX", -1, 1, 0, 2, 8.0))
sketch11.addConstraint(Sketcher.Constraint("DistanceY", 0, 2, -1, 1, 26.0))
sketch11.setExpression("Constraints[8]", "Params.sketch11_width")
sketch11.setExpression("Constraints[9]", "Params.sketch11_height")
pad8 = body.newObject("PartDesign::Pad", "Pad007")
pad8.Profile = sketch11
pad8.setExpression("Length", "Params.pad8_length")
pad8.Reversed = True
doc.recompute()

chamfer3 = body.newObject("PartDesign::Chamfer", "Chamfer002")
chamfer3.Base = (pad8, edges_at(pad8, [(21, -26, -8.5), (8, -30, -8.5)]))
chamfer3.setExpression("Size", "Params.chamfer3_size")

# Sketch on XY plane
sketch12 = body.newObject("Sketcher::SketchObject", "Sketch011")
sketch12.AttachmentSupport = (doc.getObject("XY_Plane"), [""])
sketch12.MapMode = "FlatFace"
sketch12.AttachmentOffset = App.Placement(Vector(0, 0, -6.5), App.Rotation())
add_polygon(sketch12, [(14, -35.2), (14, -34), (28, -34), (28, -35.2)])  # lines 0-3
sketch12.addConstraint(Sketcher.Constraint("Vertical", 0))
sketch12.addConstraint(Sketcher.Constraint("Horizontal", 1))
sketch12.addConstraint(Sketcher.Constraint("Vertical", 2))
sketch12.addConstraint(Sketcher.Constraint("Horizontal", 3))
sketch12.addConstraint(Sketcher.Constraint("DistanceX", 1, 1, 1, 2, 14.0))
sketch12.addConstraint(Sketcher.Constraint("DistanceY", 0, 1, 0, 2, 1.2))
sketch12.addConstraint(Sketcher.Constraint("DistanceX", -1, 1, 0, 2, 14.0))
sketch12.addConstraint(Sketcher.Constraint("DistanceY", 0, 2, -1, 1, 34.0))
sketch12.setExpression("Constraints[8]", "Params.sketch12_width")
sketch12.setExpression("Constraints[9]", "Params.sketch12_height")
pad9 = body.newObject("PartDesign::Pad", "Pad008")
pad9.Profile = sketch12
pad9.setExpression("Length", "Params.pad9_length")
pad9.Reversed = True

# Sketch on XZ plane
sketch13 = body.newObject("Sketcher::SketchObject", "Sketch012")
sketch13.AttachmentSupport = (doc.getObject("XZ_Plane"), [""])
sketch13.MapMode = "FlatFace"
sketch13.AttachmentOffset = App.Placement(Vector(0, 0, 34), App.Rotation())
add_polygon(sketch13, [(25.2, -8.5), (25.2, -11.5), (16.8, -11.5), (16.8, -8.5)])  # lines 0-3
sketch13.addConstraint(Sketcher.Constraint("Vertical", 0))
sketch13.addConstraint(Sketcher.Constraint("Horizontal", 1))
sketch13.addConstraint(Sketcher.Constraint("Vertical", 2))
sketch13.addConstraint(Sketcher.Constraint("Horizontal", 3))
sketch13.addConstraint(Sketcher.Constraint("DistanceY", 0, 2, 0, 1, 3.0))
sketch13.addConstraint(Sketcher.Constraint("DistanceX", 1, 2, 1, 1, 8.5))
sketch13.addConstraint(Sketcher.Constraint("DistanceY", 0, 2, -1, 1, 11.5))
sketch13.addConstraint(Sketcher.Constraint("DistanceX", -1, 1, 0, 2, 25.25))
sketch13.setExpression("Constraints[8]", "Params.sketch13_height")
sketch13.setExpression("Constraints[9]", "Params.sketch13_width")
pocket4 = body.newObject("PartDesign::Pocket", "Pocket003")
pocket4.Profile = sketch13
pocket4.setExpression("Length", "Params.pocket4_length")
pocket4.Reversed = True

# Sketch on XY plane
sketch14 = body.newObject("Sketcher::SketchObject", "Sketch013")
sketch14.AttachmentSupport = (doc.getObject("XY_Plane"), [""])
sketch14.MapMode = "FlatFace"
sketch14.AttachmentOffset = App.Placement(Vector(0, 0, -23.7), App.Rotation())
add_polygon(sketch14, [(-36, -36), (-36, 36), (36, 36), (36, -36)])  # lines 0-3
add_polygon(sketch14, [(34, 34), (-34, 34), (-34, -34), (34, -34)])  # lines 4-7
sketch14.addConstraint(Sketcher.Constraint("Vertical", 0))
sketch14.addConstraint(Sketcher.Constraint("Horizontal", 1))
sketch14.addConstraint(Sketcher.Constraint("Vertical", 2))
sketch14.addConstraint(Sketcher.Constraint("Horizontal", 3))
sketch14.addConstraint(Sketcher.Constraint("Horizontal", 4))
sketch14.addConstraint(Sketcher.Constraint("Vertical", 5))
sketch14.addConstraint(Sketcher.Constraint("Horizontal", 6))
sketch14.addConstraint(Sketcher.Constraint("Vertical", 7))
sketch14.addConstraint(Sketcher.Constraint("Symmetric", 0, 2, 2, 2, -1, 1))
sketch14.addConstraint(Sketcher.Constraint("Symmetric", 4, 2, 6, 2, -1, 1))
sketch14.addConstraint(Sketcher.Constraint("Equal", 3, 0))
sketch14.addConstraint(Sketcher.Constraint("Equal", 6, 5))
sketch14.addConstraint(Sketcher.Constraint("DistanceX", 4, 2, 4, 1, 68.0))
sketch14.addConstraint(Sketcher.Constraint("DistanceX", 1, 1, 1, 2, 72.8))
sketch14.setExpression("Constraints[20]", "Params.sketch14_width")
sketch14.setExpression("Constraints[21]", "Params.sketch14_width2")
pad10 = body.newObject("PartDesign::Pad", "Pad009")
pad10.Profile = sketch14
pad10.setExpression("Length", "Params.pad10_length")
pad10.Reversed = True
doc.recompute()

fillet = body.newObject("PartDesign::Fillet", "Fillet")
fillet.Base = (pad10, edges_at(pad10, [
    (-40, -40, -11.7),
    (40, -40, -11.7),
    (40, 40, -11.7),
    (-40, 40, -11.7),
]))
fillet.setExpression("Radius", "Params.fillet_radius")
doc.recompute()

chamfer4 = body.newObject("PartDesign::Chamfer", "Chamfer003")
chamfer4.Base = (fillet, edges_at(fillet, [
    (36.4, 36.4, -25.7),
    (-36.4, 36.4, -25.7),
    (36.4, -36.4, -25.7),
    (-36.4, -36.4, -25.7),
]))
chamfer4.setExpression("Size", "Params.chamfer4_size")
doc.recompute()

chamfer5 = body.newObject("PartDesign::Chamfer", "Chamfer004")
chamfer5.Base = (chamfer4, edges_at(chamfer4, [
    (28, -40, -12.1),
    (21, -40, -17.7),
    (14, -40, -12.1),
    (21, -40, -6.5),
]))
chamfer5.setExpression("Size", "Params.chamfer5_size")
doc.recompute()

chamfer6 = body.newObject("PartDesign::Chamfer", "Chamfer005")
chamfer6.Base = (chamfer5, edges_at(chamfer5, [
    (-37.364, -37.364, 0.3),
    (-40, 0, 0.3),
    (-37.364, 37.364, 0.3),
    (0, 40, 0.3),
    (0, -40, 0.3),
    (37.364, -37.364, 0.3),
    (40, 0, 0.3),
    (37.364, 37.364, 0.3),
]))
chamfer6.setExpression("Size", "Params.chamfer6_size")

doc.recompute()
